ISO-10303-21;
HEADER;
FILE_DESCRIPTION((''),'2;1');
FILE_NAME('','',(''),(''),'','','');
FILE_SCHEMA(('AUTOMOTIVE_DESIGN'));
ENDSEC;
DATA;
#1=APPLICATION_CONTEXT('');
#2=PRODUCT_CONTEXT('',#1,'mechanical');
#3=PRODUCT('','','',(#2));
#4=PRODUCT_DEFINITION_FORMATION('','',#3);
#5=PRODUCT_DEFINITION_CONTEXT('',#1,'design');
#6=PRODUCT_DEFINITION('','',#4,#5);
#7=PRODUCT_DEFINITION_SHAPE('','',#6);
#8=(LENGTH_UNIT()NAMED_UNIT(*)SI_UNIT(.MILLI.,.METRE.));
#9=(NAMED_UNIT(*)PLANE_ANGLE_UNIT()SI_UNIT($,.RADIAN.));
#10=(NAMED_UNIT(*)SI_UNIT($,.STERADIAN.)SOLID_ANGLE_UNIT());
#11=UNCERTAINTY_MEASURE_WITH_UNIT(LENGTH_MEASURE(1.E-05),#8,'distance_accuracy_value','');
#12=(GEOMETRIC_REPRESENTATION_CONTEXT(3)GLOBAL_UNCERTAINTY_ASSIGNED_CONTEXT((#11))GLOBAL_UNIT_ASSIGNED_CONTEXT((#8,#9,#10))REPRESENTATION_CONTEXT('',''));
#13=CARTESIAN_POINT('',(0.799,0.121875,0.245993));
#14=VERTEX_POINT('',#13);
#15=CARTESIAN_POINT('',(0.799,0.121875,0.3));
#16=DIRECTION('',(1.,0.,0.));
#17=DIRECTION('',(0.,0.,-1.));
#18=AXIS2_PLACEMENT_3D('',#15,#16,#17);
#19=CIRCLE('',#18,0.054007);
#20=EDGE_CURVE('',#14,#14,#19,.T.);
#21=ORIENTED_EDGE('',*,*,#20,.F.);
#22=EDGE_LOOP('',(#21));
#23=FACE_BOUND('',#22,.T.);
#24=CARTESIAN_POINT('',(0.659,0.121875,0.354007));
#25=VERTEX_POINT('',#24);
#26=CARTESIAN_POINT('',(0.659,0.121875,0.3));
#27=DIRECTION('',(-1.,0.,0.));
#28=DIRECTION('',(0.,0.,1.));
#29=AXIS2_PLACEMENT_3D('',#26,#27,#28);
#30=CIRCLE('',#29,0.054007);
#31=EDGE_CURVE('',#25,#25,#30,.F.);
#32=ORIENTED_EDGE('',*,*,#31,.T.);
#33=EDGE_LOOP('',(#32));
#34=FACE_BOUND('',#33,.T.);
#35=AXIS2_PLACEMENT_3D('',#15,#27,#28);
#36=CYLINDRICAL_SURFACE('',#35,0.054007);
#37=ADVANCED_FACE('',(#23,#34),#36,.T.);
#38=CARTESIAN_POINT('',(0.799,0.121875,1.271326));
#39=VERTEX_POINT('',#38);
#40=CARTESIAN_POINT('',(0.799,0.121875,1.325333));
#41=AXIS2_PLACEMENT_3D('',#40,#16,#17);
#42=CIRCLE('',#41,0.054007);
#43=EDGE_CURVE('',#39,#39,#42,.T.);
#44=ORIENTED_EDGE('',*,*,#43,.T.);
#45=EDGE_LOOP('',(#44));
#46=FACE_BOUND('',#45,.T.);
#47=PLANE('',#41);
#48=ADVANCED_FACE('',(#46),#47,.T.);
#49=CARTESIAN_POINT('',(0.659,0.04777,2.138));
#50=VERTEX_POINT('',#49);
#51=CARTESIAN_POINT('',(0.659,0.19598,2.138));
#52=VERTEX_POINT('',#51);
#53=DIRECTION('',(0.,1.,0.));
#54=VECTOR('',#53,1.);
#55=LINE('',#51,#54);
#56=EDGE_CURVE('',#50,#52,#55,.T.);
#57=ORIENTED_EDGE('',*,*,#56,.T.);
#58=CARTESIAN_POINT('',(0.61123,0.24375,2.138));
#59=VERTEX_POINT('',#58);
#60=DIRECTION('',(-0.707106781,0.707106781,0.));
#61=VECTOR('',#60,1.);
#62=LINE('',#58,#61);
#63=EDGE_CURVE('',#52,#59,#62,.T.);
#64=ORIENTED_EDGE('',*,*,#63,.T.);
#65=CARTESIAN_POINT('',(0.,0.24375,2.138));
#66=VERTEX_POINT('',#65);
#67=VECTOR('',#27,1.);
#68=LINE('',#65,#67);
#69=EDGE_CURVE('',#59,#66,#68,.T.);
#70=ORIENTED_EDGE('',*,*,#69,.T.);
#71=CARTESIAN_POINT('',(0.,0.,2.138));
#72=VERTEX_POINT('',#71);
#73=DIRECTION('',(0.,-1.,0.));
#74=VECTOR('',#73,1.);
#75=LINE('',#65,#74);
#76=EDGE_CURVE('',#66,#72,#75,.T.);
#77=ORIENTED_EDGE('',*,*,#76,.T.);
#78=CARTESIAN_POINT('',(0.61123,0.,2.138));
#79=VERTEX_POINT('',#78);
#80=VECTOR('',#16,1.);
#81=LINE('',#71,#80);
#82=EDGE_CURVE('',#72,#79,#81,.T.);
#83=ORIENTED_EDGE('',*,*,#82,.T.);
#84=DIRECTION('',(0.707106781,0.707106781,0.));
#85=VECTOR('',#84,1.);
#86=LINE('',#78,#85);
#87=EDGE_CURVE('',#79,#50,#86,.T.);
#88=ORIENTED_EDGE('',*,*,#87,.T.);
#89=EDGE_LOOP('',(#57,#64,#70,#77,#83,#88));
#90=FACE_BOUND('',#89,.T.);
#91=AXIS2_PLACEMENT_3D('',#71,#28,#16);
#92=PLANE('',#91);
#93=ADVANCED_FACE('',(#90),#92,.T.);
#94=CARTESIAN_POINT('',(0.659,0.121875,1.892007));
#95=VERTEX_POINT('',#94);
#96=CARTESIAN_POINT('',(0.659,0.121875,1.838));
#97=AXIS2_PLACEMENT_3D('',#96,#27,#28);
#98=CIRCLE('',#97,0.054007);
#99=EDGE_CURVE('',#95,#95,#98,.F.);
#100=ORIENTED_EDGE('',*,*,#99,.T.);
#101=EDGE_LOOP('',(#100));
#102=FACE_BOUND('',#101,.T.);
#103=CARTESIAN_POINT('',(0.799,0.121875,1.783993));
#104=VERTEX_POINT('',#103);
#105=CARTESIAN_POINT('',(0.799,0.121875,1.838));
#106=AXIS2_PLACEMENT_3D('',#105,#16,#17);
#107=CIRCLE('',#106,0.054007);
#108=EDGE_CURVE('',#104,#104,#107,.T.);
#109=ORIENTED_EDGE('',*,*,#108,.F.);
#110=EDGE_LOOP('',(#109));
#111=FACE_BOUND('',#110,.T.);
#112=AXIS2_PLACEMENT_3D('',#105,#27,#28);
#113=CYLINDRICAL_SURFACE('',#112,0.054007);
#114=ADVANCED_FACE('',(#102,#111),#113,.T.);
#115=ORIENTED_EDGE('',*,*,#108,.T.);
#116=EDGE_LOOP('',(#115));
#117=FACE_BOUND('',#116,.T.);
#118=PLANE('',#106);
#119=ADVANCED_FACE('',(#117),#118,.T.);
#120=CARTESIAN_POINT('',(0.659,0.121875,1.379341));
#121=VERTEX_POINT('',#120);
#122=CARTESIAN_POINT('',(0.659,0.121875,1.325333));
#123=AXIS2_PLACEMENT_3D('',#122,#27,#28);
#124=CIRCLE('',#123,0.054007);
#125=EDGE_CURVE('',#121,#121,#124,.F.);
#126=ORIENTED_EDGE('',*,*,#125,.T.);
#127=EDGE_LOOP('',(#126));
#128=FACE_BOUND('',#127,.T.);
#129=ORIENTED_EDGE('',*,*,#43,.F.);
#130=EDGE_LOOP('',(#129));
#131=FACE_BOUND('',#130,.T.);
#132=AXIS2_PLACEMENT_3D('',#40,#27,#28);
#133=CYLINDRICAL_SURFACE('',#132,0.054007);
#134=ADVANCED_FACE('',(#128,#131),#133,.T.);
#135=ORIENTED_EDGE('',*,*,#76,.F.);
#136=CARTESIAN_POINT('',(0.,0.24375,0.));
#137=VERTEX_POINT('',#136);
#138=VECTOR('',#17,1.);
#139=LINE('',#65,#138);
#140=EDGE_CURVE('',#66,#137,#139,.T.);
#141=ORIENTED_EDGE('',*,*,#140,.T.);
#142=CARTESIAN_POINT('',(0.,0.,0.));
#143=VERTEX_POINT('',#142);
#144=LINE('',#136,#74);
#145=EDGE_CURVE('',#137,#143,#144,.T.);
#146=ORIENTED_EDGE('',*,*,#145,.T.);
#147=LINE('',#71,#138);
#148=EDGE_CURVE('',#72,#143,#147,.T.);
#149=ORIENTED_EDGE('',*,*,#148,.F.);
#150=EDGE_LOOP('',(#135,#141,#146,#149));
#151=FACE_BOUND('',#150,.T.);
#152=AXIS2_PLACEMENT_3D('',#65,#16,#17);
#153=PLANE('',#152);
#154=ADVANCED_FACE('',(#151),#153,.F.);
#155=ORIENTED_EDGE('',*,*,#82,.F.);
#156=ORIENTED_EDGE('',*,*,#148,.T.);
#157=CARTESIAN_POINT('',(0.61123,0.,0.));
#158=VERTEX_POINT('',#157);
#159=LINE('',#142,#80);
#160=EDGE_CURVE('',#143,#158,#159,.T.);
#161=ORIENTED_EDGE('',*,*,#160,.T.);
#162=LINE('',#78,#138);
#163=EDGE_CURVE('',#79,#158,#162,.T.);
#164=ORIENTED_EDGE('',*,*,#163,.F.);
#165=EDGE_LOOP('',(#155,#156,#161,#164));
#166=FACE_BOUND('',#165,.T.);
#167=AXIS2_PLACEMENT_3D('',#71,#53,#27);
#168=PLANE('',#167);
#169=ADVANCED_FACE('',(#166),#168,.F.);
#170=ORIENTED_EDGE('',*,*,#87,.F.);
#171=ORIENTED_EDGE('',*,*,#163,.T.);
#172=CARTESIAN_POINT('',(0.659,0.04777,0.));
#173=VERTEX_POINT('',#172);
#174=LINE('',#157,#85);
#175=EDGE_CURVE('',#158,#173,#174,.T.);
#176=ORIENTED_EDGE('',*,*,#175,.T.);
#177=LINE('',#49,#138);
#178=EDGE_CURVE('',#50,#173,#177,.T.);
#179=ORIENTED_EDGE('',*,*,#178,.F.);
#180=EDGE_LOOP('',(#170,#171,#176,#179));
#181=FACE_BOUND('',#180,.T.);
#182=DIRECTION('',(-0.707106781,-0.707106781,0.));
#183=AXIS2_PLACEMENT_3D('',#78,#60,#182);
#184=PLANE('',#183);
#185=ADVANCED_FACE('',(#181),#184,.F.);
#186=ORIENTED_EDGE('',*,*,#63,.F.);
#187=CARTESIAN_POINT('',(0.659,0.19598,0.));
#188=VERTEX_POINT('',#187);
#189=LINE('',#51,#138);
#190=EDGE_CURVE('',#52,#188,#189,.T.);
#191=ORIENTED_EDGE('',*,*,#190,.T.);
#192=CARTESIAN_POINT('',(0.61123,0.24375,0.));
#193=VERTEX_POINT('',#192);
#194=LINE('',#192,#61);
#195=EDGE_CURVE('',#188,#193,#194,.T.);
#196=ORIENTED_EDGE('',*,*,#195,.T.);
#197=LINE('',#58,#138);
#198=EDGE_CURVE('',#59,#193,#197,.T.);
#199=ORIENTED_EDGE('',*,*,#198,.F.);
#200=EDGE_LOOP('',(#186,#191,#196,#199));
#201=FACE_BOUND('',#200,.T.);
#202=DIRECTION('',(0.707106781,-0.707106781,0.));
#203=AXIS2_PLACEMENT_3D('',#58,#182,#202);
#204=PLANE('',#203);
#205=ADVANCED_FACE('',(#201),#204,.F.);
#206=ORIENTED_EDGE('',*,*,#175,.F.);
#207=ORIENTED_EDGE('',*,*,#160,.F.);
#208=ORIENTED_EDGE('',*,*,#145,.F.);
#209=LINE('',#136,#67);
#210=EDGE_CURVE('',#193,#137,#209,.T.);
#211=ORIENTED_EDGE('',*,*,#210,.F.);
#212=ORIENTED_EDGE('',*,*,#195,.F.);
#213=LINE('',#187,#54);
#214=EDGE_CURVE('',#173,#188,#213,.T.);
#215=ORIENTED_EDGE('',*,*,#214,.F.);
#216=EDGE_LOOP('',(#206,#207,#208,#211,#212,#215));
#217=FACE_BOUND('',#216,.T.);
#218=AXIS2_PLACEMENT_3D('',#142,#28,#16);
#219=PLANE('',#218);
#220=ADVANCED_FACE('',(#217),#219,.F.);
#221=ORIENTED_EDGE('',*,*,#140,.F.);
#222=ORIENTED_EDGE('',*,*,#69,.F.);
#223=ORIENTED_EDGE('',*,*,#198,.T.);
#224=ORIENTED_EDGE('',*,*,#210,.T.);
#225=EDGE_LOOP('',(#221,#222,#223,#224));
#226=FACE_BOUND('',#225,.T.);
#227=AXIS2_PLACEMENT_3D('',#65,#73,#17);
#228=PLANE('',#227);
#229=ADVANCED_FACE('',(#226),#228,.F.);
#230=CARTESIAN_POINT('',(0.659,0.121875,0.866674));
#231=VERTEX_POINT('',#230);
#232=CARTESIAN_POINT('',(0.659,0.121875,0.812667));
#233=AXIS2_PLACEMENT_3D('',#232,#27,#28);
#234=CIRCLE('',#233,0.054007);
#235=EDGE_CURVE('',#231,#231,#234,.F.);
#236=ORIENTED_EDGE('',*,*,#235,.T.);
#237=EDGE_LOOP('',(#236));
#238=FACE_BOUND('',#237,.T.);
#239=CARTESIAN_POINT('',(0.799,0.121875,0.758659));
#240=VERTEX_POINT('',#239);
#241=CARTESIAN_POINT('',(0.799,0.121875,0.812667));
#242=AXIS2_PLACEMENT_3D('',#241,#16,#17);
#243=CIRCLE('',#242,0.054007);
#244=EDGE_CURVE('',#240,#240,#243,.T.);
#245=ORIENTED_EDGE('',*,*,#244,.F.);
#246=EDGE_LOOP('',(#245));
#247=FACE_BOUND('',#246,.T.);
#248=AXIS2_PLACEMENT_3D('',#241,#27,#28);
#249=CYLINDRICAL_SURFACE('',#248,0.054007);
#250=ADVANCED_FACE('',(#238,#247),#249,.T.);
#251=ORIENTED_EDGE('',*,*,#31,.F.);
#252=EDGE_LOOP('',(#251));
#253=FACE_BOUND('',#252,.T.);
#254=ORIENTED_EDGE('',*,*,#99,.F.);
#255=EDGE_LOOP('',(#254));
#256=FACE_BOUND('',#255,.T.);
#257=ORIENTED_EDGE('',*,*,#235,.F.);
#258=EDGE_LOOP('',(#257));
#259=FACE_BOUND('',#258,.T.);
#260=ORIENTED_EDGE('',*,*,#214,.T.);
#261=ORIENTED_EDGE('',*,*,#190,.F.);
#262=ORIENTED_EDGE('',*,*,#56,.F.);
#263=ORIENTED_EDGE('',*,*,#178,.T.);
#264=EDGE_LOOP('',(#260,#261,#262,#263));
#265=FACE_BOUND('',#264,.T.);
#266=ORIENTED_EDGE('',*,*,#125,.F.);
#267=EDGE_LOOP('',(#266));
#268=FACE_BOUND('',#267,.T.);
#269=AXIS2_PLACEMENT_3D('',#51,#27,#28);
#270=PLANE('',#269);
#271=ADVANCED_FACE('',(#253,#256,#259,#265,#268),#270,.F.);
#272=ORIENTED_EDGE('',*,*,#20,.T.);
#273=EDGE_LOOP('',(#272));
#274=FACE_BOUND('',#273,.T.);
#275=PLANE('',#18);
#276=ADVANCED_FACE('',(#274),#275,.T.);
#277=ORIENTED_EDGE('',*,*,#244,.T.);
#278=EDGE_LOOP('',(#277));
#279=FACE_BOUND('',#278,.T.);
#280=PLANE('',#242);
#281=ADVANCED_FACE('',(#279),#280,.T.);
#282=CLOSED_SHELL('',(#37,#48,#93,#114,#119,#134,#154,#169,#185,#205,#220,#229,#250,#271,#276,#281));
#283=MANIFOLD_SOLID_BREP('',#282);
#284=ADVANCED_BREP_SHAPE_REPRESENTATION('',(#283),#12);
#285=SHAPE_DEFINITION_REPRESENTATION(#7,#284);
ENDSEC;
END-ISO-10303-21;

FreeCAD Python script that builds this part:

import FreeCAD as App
import Part
import Sketcher

V = App.Vector


def add_polygon(sketch, points):
    """Adds a closed chain of lines whose ends are joined by coincident constraints."""
    first, n = sketch.GeometryCount, len(points)
    for a, b in zip(points, points[1:] + points[:1]):
        sketch.addGeometry(Part.LineSegment(App.Vector(*a, 0), App.Vector(*b, 0)), False)
    for i in range(n):
        sketch.addConstraint(Sketcher.Constraint("Coincident", first + i, 2, first + (i + 1) % n, 1))

doc = App.newDocument("Part")
params = doc.addObject("Spreadsheet::Sheet", "Params")
for row, (alias, value) in enumerate([
    ("pad1_length", "2.138 mm"),
    ("pad2_length", "0.14 mm"),
], start=1):
    params.set(f"A{row}", alias)
    params.set(f"B{row}", "=" + value)
    params.setAlias(f"B{row}", alias)

body = doc.addObject("PartDesign::Body", "Body")

sketch1 = body.newObject("Sketcher::SketchObject", "Sketch")
sketch1.AttachmentSupport = (doc.getObject("XY_Plane"), [""])
sketch1.MapMode = "FlatFace"
add_polygon(sketch1, [(0, 0), (0.61123, 0), (0.659, 0.04777), (0.659, 0.19598), (0.61123, 0.24375), (0, 0.24375)])
sketch1.addConstraint(Sketcher.Constraint("Horizontal", 0))
sketch1.addConstraint(Sketcher.Constraint("Vertical", 2))
sketch1.addConstraint(Sketcher.Constraint("Horizontal", 4))
sketch1.addConstraint(Sketcher.Constraint("Vertical", 5))
sketch1.addConstraint(Sketcher.Constraint("Coincident", 5, 2, -1, 1))
sketch1.addConstraint(Sketcher.Constraint("Perpendicular", 1, 3))
sketch1.addConstraint(Sketcher.Constraint("Vertical", 0, 2, 3, 2))
sketch1.addConstraint(Sketcher.Constraint("Equal", 1, 3))
sketch1.addConstraint(Sketcher.Constraint("DistanceX", -1, 1, 1, 2, 0.659))
sketch1.addConstraint(Sketcher.Constraint("DistanceX", 0, 1, 0, 2, 0.61123))
sketch1.addConstraint(Sketcher.Constraint("DistanceY", 2, 1, 2, 2, 0.14821))
pad1 = body.newObject("PartDesign::Pad", "Pad")
pad1.Profile = sketch1
pad1.setExpression("Length", "Params.pad1_length")

sketch2 = body.newObject("Sketcher::SketchObject", "Sketch001")
sketch2.AttachmentSupport = (doc.getObject("YZ_Plane"), [""])
sketch2.MapMode = "FlatFace"
sketch2.AttachmentOffset = App.Placement(V(0, 0, 0.659), App.Rotation())
sketch2.addGeometry(Part.Circle(V(0.121875, 1.838, 0), V(0, 0, 1), 0.054007), False)
sketch2.addGeometry(Part.Circle(V(0.121875, 1.325333, 0), V(0, 0, 1), 0.054007), False)
sketch2.addGeometry(Part.Circle(V(0.121875, 0.812667, 0), V(0, 0, 1), 0.054007), False)
sketch2.addGeometry(Part.Circle(V(0.121875, 0.3, 0), V(0, 0, 1), 0.054007), False)
sketch2.addConstraint(Sketcher.Constraint("Equal", 0, 1))
sketch2.addConstraint(Sketcher.Constraint("Equal", 1, 2))
sketch2.addConstraint(Sketcher.Constraint("Equal", 2, 3))
sketch2.addConstraint(Sketcher.Constraint("Vertical", 0, 3, 1, 3))
sketch2.addConstraint(Sketcher.Constraint("Vertical", 1, 3, 2, 3))
sketch2.addConstraint(Sketcher.Constraint("Vertical", 2, 3, 3, 3))
sketch2.addConstraint(Sketcher.Constraint("DistanceY", -1, 1, 3, 3, 0.3))
sketch2.addConstraint(Sketcher.Constraint("Diameter", 0, 0.108015))
sketch2.addConstraint(Sketcher.Constraint("DistanceY", -1, 1, 0, 3, 1.838))
sketch2.addConstraint(Sketcher.Constraint("DistanceX", -1, 1, 0, 3, 0.121875))
sketch2.addConstraint(Sketcher.Constraint("DistanceY", -1, 1, 1, 3, 1.325333))
sketch2.addConstraint(Sketcher.Constraint("DistanceY", -1, 1, 2, 3, 0.812667))
pad2 = body.newObject("PartDesign::Pad", "Pad001")
pad2.Profile = sketch2
pad2.setExpression("Length", "Params.pad2_length")

doc.recompute()
